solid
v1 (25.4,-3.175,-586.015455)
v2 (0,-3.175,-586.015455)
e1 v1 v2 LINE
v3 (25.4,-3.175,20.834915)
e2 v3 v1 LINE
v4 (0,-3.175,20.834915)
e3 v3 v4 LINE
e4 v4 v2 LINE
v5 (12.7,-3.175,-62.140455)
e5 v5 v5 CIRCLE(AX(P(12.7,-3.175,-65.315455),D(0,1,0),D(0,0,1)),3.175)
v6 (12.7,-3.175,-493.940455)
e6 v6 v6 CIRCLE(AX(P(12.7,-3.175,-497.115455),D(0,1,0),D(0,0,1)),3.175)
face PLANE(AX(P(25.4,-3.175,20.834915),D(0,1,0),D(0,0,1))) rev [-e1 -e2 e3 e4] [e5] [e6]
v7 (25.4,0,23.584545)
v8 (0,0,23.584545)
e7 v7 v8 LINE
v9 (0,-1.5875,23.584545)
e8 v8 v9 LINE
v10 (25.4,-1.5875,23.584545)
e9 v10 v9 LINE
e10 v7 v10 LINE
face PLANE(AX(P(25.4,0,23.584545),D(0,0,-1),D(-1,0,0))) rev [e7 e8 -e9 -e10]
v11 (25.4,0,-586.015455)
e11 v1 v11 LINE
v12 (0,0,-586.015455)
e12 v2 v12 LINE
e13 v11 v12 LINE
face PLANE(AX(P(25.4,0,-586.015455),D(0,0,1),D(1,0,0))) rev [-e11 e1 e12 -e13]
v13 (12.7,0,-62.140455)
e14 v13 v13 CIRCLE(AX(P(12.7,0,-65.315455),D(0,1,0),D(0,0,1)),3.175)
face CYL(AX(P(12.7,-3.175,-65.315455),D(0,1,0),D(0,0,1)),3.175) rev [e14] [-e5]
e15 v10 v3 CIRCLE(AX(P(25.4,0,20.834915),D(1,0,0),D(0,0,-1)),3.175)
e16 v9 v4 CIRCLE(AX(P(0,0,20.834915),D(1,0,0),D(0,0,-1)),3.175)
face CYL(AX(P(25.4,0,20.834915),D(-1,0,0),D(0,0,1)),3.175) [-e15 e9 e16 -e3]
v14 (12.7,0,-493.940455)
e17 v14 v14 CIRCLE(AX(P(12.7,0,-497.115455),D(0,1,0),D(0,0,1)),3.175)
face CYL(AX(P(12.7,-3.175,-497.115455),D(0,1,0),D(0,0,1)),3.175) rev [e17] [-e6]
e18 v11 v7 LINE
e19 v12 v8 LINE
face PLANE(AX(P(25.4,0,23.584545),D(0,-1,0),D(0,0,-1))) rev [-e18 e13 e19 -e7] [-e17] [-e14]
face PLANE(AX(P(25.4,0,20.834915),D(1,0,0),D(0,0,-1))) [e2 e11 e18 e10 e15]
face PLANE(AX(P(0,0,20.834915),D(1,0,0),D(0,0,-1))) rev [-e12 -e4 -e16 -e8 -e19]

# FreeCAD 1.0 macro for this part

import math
import FreeCAD as App
import Part
import Sketcher

V = App.Vector
Q = App.Units.Quantity

doc = App.newDocument("Part")
body = doc.addObject("PartDesign::Body", "Body")

# Sketch on YZ plane
sketch1 = body.newObject("Sketcher::SketchObject", "Sketch")
sketch1.AttachmentSupport = (doc.getObject("YZ_Plane"), [""])
sketch1.MapMode = "FlatFace"
sketch1.addGeometry([
    Part.LineSegment(V(0, 23.6, 0), V(-1.6, 23.6, 0)),  # 0
    Part.ArcOfCircle(Part.Circle(V(0, 20.8, 0), V(0, 0, 1), 3.2), math.radians(120), math.radians(180)),  # 1
    Part.LineSegment(V(-3.2, 20.8, 0), V(-3.2, -586, 0)),  # 2
    Part.LineSegment(V(-3.2, -586, 0), V(0, -586, 0)),  # 3
    Part.LineSegment(V(0, -586, 0), V(0, 23.6, 0)),  # 4
], False)
sketch1.addConstraint([
    Sketcher.Constraint("Coincident", 0, 2, 1, 1),
    Sketcher.Constraint("Tangent", 1, 2, 2, 1),
    Sketcher.Constraint("Coincident", 2, 2, 3, 1),
    Sketcher.Constraint("Coincident", 3, 2, 4, 1),
    Sketcher.Constraint("Coincident", 4, 2, 0, 1),
    Sketcher.Constraint("Horizontal", 0),
    Sketcher.Constraint("Vertical", 2),
    Sketcher.Constraint("Horizontal", 3),
    Sketcher.Constraint("Vertical", 4),
    Sketcher.Constraint("PointOnObject", 1, 3, -2),
    Sketcher.Constraint("PointOnObject", 3, 2, -2),
    Sketcher.Constraint("DistanceY", 4, 1, 4, 2, Q("24 in")),
    Sketcher.Constraint("Radius", 1, Q("0.125 in")),
    Sketcher.Constraint("DistanceX", 0, 2, 0, 1, Q("0.0625 in")),
    Sketcher.Constraint("DistanceY", -1, 1, 1, 3, 20.834915),
])
pad1 = body.newObject("PartDesign::Pad", "Pad")
pad1.Profile = sketch1
pad1.Length = Q("1 in")

# Sketch on XZ plane
sketch2 = body.newObject("Sketcher::SketchObject", "Sketch001")
sketch2.AttachmentSupport = (doc.getObject("XZ_Plane"), [""])
sketch2.MapMode = "FlatFace"
sketch2.addGeometry([
    Part.Circle(V(12.7, -65.3, 0), V(0, 0, 1), 3.2),
    Part.Circle(V(12.7, -497.1, 0), V(0, 0, 1), 3.2),
], False)
sketch2.addConstraint([
    Sketcher.Constraint("Equal", 0, 1),
    Sketcher.Constraint("Vertical", 0, 3, 1, 3),
    Sketcher.Constraint("Diameter", 0, Q("0.25 in")),
    Sketcher.Constraint("DistanceY", 1, 3, 0, 3, Q("17 in")),
    Sketcher.Constraint("DistanceX", -1, 1, 0, 3, Q("0.5 in")),
    Sketcher.Constraint("DistanceY", 0, 3, -1, 1, 65.315455),
])
pocket1 = body.newObject("PartDesign::Pocket", "Pocket")
pocket1.Profile = sketch2
pocket1.Type = "ThroughAll"
pocket1.Reversed = True

doc.recompute()
